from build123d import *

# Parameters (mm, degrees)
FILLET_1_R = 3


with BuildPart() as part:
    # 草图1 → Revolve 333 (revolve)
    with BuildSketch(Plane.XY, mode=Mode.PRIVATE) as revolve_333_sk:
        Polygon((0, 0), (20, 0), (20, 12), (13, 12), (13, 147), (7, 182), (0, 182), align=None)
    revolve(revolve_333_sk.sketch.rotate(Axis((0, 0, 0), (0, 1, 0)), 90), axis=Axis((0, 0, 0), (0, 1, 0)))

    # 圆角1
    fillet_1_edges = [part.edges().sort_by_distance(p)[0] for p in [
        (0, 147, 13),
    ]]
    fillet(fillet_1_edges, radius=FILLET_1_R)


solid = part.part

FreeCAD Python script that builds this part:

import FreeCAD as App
import Part
import Sketcher
Q = App.Units.Quantity


def edges_at(feature, points):
    """Names of the edges that pass closest to the given points."""
    edges = feature.Shape.Edges
    near = lambda p: min(range(len(edges)), key=lambda i: edges[i].distToShape(Part.Vertex(*p))[0])
    return sorted({f"Edge{near(p) + 1}" for p in points})

doc = App.newDocument("Part")
body = doc.addObject("PartDesign::Body", "Body")

sketch1 = doc.addObject("Sketcher::SketchObject", "Sketch")
body.addObject(sketch1)
sketch1.AttachmentSupport = (doc.XY_Plane, [""])
sketch1.MapMode = "FlatFace"
sketch1.addGeometry(Part.LineSegment(App.Vector(0, 0, 0), App.Vector(20, 0, 0)), False)
sketch1.addGeometry(Part.LineSegment(App.Vector(20, 0, 0), App.Vector(20, 12, 0)), False)
sketch1.addGeometry(Part.LineSegment(App.Vector(20, 12, 0), App.Vector(13, 12, 0)), False)
sketch1.addGeometry(Part.LineSegment(App.Vector(13, 12, 0), App.Vector(13, 147, 0)), False)
sketch1.addGeometry(Part.LineSegment(App.Vector(13, 147, 0), App.Vector(7, 182, 0)), False)
sketch1.addGeometry(Part.LineSegment(App.Vector(7, 182, 0), App.Vector(0, 182, 0)), False)
sketch1.addGeometry(Part.LineSegment(App.Vector(0, 182, 0), App.Vector(0, 0, 0)), False)
sketch1.addConstraint(Sketcher.Constraint("Coincident", 0, 2, 1, 1))
sketch1.addConstraint(Sketcher.Constraint("Coincident", 1, 2, 2, 1))
sketch1.addConstraint(Sketcher.Constraint("Coincident", 2, 2, 3, 1))
sketch1.addConstraint(Sketcher.Constraint("Coincident", 3, 2, 4, 1))
sketch1.addConstraint(Sketcher.Constraint("Coincident", 4, 2, 5, 1))
sketch1.addConstraint(Sketcher.Constraint("Coincident", 5, 2, 6, 1))
sketch1.addConstraint(Sketcher.Constraint("Coincident", 6, 2, 0, 1))
sketch1.addConstraint(Sketcher.Constraint("Horizontal", 0))
sketch1.addConstraint(Sketcher.Constraint("Vertical", 1))
sketch1.addConstraint(Sketcher.Constraint("Horizontal", 2))
sketch1.addConstraint(Sketcher.Constraint("Vertical", 3))
sketch1.addConstraint(Sketcher.Constraint("Horizontal", 5))
sketch1.addConstraint(Sketcher.Constraint("Vertical", 6))
sketch1.addConstraint(Sketcher.Constraint("Coincident", 6, 2, -1, 1))
sketch1.addConstraint(Sketcher.Constraint("Equal", 2, 5))
sketch1.addConstraint(Sketcher.Constraint("DistanceX", 0, 1, 0, 2, Q("20 mm")))
sketch1.addConstraint(Sketcher.Constraint("DistanceX", 2, 2, 2, 1, Q("7 mm")))
sketch1.addConstraint(Sketcher.Constraint("DistanceY", 1, 1, 1, 2, Q("12 mm")))
sketch1.addConstraint(Sketcher.Constraint("DistanceY", 3, 1, 3, 2, Q("135 mm")))
sketch1.addConstraint(Sketcher.Constraint("DistanceY", 6, 2, 6, 1, Q("182 mm")))
revolution = doc.addObject("PartDesign::Revolution", "Revolution")
body.addObject(revolution)
revolution.Profile = sketch1
revolution.ReferenceAxis = (sketch1, ["V_Axis"])
revolution.Angle = 360
doc.recompute()

fillet = doc.addObject("PartDesign::Fillet", "Fillet")
body.addObject(fillet)
fillet.Base = (revolution, edges_at(revolution, [(0, 147, 13)]))
fillet.Radius = 3

doc.recompute()
